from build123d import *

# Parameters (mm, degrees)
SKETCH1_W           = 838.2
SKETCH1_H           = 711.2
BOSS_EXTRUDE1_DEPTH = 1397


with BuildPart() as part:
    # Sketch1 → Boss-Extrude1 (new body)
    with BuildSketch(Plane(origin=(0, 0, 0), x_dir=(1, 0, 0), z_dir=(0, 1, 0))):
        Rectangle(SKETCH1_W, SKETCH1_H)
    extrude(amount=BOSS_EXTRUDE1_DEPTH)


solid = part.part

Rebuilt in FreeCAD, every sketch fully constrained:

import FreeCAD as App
import Part
import Sketcher
from FreeCAD import Vector
Q = App.Units.Quantity


def add_polygon(sketch, points):
    """Adds a closed chain of lines whose ends are joined by coincident constraints."""
    first, n = sketch.GeometryCount, len(points)
    for a, b in zip(points, points[1:] + points[:1]):
        sketch.addGeometry(Part.LineSegment(App.Vector(*a, 0), App.Vector(*b, 0)), False)
    for i in range(n):
        sketch.addConstraint(Sketcher.Constraint("Coincident", first + i, 2, first + (i + 1) % n, 1))

doc = App.newDocument("Part")
body = doc.addObject("PartDesign::Body", "Body")

sketch1 = body.newObject("Sketcher::SketchObject", "Sketch")
sketch1.AttachmentSupport = (doc.getObject("XZ_Plane"), [""])
sketch1.MapMode = "FlatFace"
add_polygon(sketch1, [(-419.1, -355.6), (-419.1, 355.6), (419.1, 355.6), (419.1, -355.6)])
sketch1.addConstraint(Sketcher.Constraint("Vertical", 0))
sketch1.addConstraint(Sketcher.Constraint("Horizontal", 1))
sketch1.addConstraint(Sketcher.Constraint("Vertical", 2))
sketch1.addConstraint(Sketcher.Constraint("Horizontal", 3))
sketch1.addConstraint(Sketcher.Constraint("Symmetric", 0, 2, 2, 2, -1, 1))
sketch1.addConstraint(Sketcher.Constraint("DistanceX", 1, 1, 1, 2, Q("33 in")))
sketch1.addConstraint(Sketcher.Constraint("DistanceY", 0, 1, 0, 2, Q("28 in")))
pad1 = body.newObject("PartDesign::Pad", "Pad")
pad1.Profile = sketch1
pad1.Length = Q("55 in")
pad1.Reversed = True

doc.recompute()
